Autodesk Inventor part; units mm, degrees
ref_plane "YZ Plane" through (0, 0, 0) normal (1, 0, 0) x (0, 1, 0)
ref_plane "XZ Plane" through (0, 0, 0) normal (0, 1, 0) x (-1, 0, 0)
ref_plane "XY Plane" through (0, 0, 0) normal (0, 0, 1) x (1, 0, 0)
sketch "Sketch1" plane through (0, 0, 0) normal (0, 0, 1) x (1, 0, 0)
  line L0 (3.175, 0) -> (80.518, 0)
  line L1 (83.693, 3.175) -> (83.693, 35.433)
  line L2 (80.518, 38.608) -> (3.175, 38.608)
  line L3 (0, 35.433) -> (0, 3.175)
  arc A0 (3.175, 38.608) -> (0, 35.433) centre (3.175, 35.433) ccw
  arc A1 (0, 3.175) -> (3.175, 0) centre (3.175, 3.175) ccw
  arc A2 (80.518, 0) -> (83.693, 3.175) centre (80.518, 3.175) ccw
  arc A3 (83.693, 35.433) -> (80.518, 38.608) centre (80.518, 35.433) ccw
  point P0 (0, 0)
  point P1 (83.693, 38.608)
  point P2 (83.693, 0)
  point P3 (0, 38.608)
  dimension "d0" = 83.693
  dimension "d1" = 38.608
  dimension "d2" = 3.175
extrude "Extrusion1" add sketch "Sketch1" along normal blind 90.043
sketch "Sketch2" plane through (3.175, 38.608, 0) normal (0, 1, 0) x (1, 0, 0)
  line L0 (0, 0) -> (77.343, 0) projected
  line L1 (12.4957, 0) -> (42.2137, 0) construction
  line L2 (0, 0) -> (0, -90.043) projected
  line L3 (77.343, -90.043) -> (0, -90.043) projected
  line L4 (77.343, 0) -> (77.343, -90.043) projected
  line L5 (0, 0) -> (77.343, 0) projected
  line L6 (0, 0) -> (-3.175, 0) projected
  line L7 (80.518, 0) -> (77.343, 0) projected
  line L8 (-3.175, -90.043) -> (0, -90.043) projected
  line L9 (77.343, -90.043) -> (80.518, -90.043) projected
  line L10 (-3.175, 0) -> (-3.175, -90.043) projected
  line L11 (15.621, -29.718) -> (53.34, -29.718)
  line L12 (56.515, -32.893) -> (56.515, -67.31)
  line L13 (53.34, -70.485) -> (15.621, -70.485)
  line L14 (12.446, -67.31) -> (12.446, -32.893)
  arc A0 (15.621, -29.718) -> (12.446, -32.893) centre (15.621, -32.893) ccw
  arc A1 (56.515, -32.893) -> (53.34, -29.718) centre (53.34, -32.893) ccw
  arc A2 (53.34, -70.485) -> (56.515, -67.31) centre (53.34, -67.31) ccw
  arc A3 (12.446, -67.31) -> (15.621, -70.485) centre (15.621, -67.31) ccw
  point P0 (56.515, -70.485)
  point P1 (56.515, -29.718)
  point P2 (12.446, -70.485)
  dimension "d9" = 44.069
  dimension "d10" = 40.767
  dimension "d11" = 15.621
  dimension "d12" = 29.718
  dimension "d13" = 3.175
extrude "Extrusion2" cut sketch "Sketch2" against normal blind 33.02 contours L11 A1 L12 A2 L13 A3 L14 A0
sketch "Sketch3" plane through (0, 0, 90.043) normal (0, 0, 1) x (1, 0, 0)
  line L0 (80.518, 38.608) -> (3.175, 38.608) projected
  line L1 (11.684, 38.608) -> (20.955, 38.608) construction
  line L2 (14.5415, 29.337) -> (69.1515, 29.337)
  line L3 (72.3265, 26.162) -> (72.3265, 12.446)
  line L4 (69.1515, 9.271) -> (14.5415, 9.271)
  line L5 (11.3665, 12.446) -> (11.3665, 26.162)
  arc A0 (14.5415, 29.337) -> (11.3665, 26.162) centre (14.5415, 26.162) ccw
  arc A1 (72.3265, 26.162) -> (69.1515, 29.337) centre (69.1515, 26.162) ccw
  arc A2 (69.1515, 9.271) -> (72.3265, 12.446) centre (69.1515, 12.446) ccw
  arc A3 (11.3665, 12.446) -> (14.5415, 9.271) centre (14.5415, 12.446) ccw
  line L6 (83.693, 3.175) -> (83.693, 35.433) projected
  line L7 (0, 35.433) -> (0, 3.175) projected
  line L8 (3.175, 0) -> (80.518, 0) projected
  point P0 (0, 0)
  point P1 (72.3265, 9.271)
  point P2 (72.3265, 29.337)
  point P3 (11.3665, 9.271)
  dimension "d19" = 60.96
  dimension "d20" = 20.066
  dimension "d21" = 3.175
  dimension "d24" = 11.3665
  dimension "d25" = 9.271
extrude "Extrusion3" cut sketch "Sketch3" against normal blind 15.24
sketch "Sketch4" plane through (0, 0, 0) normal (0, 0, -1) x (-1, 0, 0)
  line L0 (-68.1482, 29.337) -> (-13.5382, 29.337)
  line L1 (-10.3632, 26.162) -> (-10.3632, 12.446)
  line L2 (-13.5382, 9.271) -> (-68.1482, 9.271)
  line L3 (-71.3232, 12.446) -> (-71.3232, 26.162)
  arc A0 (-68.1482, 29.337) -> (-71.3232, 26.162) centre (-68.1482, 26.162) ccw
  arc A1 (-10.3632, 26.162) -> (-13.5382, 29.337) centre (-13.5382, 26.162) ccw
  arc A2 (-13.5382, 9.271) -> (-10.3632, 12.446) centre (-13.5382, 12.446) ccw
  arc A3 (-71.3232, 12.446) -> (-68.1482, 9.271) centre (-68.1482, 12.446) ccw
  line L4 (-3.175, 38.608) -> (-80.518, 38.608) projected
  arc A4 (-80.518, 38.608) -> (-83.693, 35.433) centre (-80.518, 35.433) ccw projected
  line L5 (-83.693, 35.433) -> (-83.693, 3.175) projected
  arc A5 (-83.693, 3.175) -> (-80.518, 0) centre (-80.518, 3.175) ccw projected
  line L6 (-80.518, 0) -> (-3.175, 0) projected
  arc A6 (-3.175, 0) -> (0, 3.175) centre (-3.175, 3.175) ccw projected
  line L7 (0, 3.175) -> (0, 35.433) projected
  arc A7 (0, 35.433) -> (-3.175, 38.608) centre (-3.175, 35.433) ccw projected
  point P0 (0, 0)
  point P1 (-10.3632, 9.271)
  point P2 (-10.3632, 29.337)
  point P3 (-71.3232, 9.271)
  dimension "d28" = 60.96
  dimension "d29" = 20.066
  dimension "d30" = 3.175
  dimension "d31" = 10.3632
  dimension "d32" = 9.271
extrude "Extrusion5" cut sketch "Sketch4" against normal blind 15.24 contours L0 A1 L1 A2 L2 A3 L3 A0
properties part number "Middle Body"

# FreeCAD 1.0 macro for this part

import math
import FreeCAD as App
import Part
import Sketcher

V = App.Vector
Q = App.Units.Quantity

doc = App.newDocument("Part")
body = doc.addObject("PartDesign::Body", "Body")

sketch1 = body.newObject("Sketcher::SketchObject", "Sketch")
sketch1.AttachmentSupport = (doc.getObject("XY_Plane"), [""])
sketch1.MapMode = "FlatFace"
sketch1.addGeometry(Part.ArcOfCircle(Part.Circle(V(3.2, 3.2, 0), V(0, 0, 1), 3.2), math.radians(180), math.radians(270)), False)
sketch1.addGeometry(Part.LineSegment(V(3.2, 0, 0), V(80.5, 0, 0)), False)
sketch1.addGeometry(Part.ArcOfCircle(Part.Circle(V(80.5, 3.2, 0), V(0, 0, 1), 3.2), math.radians(-90), math.radians(0)), False)
sketch1.addGeometry(Part.LineSegment(V(83.7, 3.2, 0), V(83.7, 35.4, 0)), False)
sketch1.addGeometry(Part.ArcOfCircle(Part.Circle(V(80.5, 35.4, 0), V(0, 0, 1), 3.2), math.radians(0), math.radians(90)), False)
sketch1.addGeometry(Part.LineSegment(V(80.5, 38.6, 0), V(3.2, 38.6, 0)), False)
sketch1.addGeometry(Part.ArcOfCircle(Part.Circle(V(3.2, 35.4, 0), V(0, 0, 1), 3.2), math.radians(90), math.radians(180)), False)
sketch1.addGeometry(Part.LineSegment(V(0, 35.4, 0), V(0, 3.2, 0)), False)
sketch1.addConstraint(Sketcher.Constraint("Tangent", 0, 2, 1, 1))
sketch1.addConstraint(Sketcher.Constraint("Tangent", 1, 2, 2, 1))
sketch1.addConstraint(Sketcher.Constraint("Tangent", 2, 2, 3, 1))
sketch1.addConstraint(Sketcher.Constraint("Tangent", 3, 2, 4, 1))
sketch1.addConstraint(Sketcher.Constraint("Tangent", 4, 2, 5, 1))
sketch1.addConstraint(Sketcher.Constraint("Tangent", 5, 2, 6, 1))
sketch1.addConstraint(Sketcher.Constraint("Tangent", 6, 2, 7, 1))
sketch1.addConstraint(Sketcher.Constraint("Tangent", 7, 2, 0, 1))
sketch1.addConstraint(Sketcher.Constraint("Horizontal", 1))
sketch1.addConstraint(Sketcher.Constraint("Vertical", 3))
sketch1.addConstraint(Sketcher.Constraint("Horizontal", 5))
sketch1.addConstraint(Sketcher.Constraint("Vertical", 7))
sketch1.addConstraint(Sketcher.Constraint("Equal", 0, 2))
sketch1.addConstraint(Sketcher.Constraint("Equal", 2, 4))
sketch1.addConstraint(Sketcher.Constraint("Equal", 4, 6))
sketch1.addConstraint(Sketcher.Constraint("PointOnObject", 0, 2, -1))
sketch1.addConstraint(Sketcher.Constraint("PointOnObject", 6, 2, -2))
sketch1.addConstraint(Sketcher.Constraint("Radius", 0, Q("0.125 in")))
sketch1.addConstraint(Sketcher.Constraint("DistanceY", -1, 1, 4, 2, Q("1.52 in")))
sketch1.addConstraint(Sketcher.Constraint("DistanceX", -1, 1, 2, 2, Q("3.295 in")))
pad1 = body.newObject("PartDesign::Pad", "Pad")
pad1.Profile = sketch1
pad1.Length = Q("3.545 in")

sketch2 = body.newObject("Sketcher::SketchObject", "Sketch001")
sketch2.AttachmentSupport = (doc.getObject("XZ_Plane"), [""])
sketch2.MapMode = "FlatFace"
sketch2.AttachmentOffset = App.Placement(V(0, 0, -1.52 * 25.4), App.Rotation())
sketch2.addGeometry(Part.LineSegment(V(56.5, 29.7, 0), V(18.8, 29.7, 0)), False)
sketch2.addGeometry(Part.ArcOfCircle(Part.Circle(V(18.8, 32.9, 0), V(0, 0, 1), 3.2), math.radians(180), math.radians(270)), False)
sketch2.addGeometry(Part.LineSegment(V(15.6, 32.9, 0), V(15.6, 67.3, 0)), False)
sketch2.addGeometry(Part.ArcOfCircle(Part.Circle(V(18.8, 67.3, 0), V(0, 0, 1), 3.2), math.radians(90), math.radians(180)), False)
sketch2.addGeometry(Part.LineSegment(V(18.8, 70.5, 0), V(56.5, 70.5, 0)), False)
sketch2.addGeometry(Part.ArcOfCircle(Part.Circle(V(56.5, 67.3, 0), V(0, 0, 1), 3.2), math.radians(0), math.radians(90)), False)
sketch2.addGeometry(Part.LineSegment(V(59.7, 67.3, 0), V(59.7, 32.9, 0)), False)
sketch2.addGeometry(Part.ArcOfCircle(Part.Circle(V(56.5, 32.9, 0), V(0, 0, 1), 3.2), math.radians(-90), math.radians(0)), False)
sketch2.addConstraint(Sketcher.Constraint("Tangent", 0, 2, 1, 2))
sketch2.addConstraint(Sketcher.Constraint("Tangent", 1, 1, 2, 1))
sketch2.addConstraint(Sketcher.Constraint("Tangent", 2, 2, 3, 2))
sketch2.addConstraint(Sketcher.Constraint("Tangent", 3, 1, 4, 1))
sketch2.addConstraint(Sketcher.Constraint("Tangent", 4, 2, 5, 2))
sketch2.addConstraint(Sketcher.Constraint("Tangent", 5, 1, 6, 1))
sketch2.addConstraint(Sketcher.Constraint("Tangent", 6, 2, 7, 2))
sketch2.addConstraint(Sketcher.Constraint("Tangent", 7, 1, 0, 1))
sketch2.addConstraint(Sketcher.Constraint("Horizontal", 0))
sketch2.addConstraint(Sketcher.Constraint("Vertical", 2))
sketch2.addConstraint(Sketcher.Constraint("Horizontal", 4))
sketch2.addConstraint(Sketcher.Constraint("Vertical", 6))
sketch2.addConstraint(Sketcher.Constraint("Equal", 1, 3))
sketch2.addConstraint(Sketcher.Constraint("Equal", 3, 5))
sketch2.addConstraint(Sketcher.Constraint("Equal", 5, 7))
sketch2.addConstraint(Sketcher.Constraint("Radius", 1, Q("0.125 in")))
sketch2.addConstraint(Sketcher.Constraint("DistanceY", -1, 1, 0, 2, Q("1.17 in")))
sketch2.addConstraint(Sketcher.Constraint("DistanceX", -1, 1, 1, 1, Q("0.615 in")))
sketch2.addConstraint(Sketcher.Constraint("DistanceX", 0, 2, 0, 1, Q("1.485 in")))
sketch2.addConstraint(Sketcher.Constraint("DistanceY", 2, 1, 2, 2, Q("1.355 in")))
pocket1 = body.newObject("PartDesign::Pocket", "Pocket")
pocket1.Profile = sketch2
pocket1.Length = Q("1.3 in")
pocket1.Reversed = True

sketch3 = body.newObject("Sketcher::SketchObject", "Sketch002")
sketch3.AttachmentSupport = (doc.getObject("XY_Plane"), [""])
sketch3.MapMode = "FlatFace"
sketch3.AttachmentOffset = App.Placement(V(0, 0, 3.545 * 25.4), App.Rotation())
sketch3.addGeometry(Part.LineSegment(V(69.2, 29.3, 0), V(14.5, 29.3, 0)), False)
sketch3.addGeometry(Part.ArcOfCircle(Part.Circle(V(14.5, 26.2, 0), V(0, 0, 1), 3.2), math.radians(90), math.radians(180)), False)
sketch3.addGeometry(Part.LineSegment(V(11.4, 26.2, 0), V(11.4, 12.4, 0)), False)
sketch3.addGeometry(Part.ArcOfCircle(Part.Circle(V(14.5, 12.4, 0), V(0, 0, 1), 3.2), math.radians(180), math.radians(270)), False)
sketch3.addGeometry(Part.LineSegment(V(14.5, 9.3, 0), V(69.2, 9.3, 0)), False)
sketch3.addGeometry(Part.ArcOfCircle(Part.Circle(V(69.2, 12.4, 0), V(0, 0, 1), 3.2), math.radians(-90), math.radians(0)), False)
sketch3.addGeometry(Part.LineSegment(V(72.3, 12.4, 0), V(72.3, 26.2, 0)), False)
sketch3.addGeometry(Part.ArcOfCircle(Part.Circle(V(69.2, 26.2, 0), V(0, 0, 1), 3.2), math.radians(0), math.radians(90)), False)
sketch3.addConstraint(Sketcher.Constraint("Tangent", 0, 2, 1, 1))
sketch3.addConstraint(Sketcher.Constraint("Tangent", 1, 2, 2, 1))
sketch3.addConstraint(Sketcher.Constraint("Tangent", 2, 2, 3, 1))
sketch3.addConstraint(Sketcher.Constraint("Tangent", 3, 2, 4, 1))
sketch3.addConstraint(Sketcher.Constraint("Tangent", 4, 2, 5, 1))
sketch3.addConstraint(Sketcher.Constraint("Tangent", 5, 2, 6, 1))
sketch3.addConstraint(Sketcher.Constraint("Tangent", 6, 2, 7, 1))
sketch3.addConstraint(Sketcher.Constraint("Tangent", 7, 2, 0, 1))
sketch3.addConstraint(Sketcher.Constraint("Horizontal", 0))
sketch3.addConstraint(Sketcher.Constraint("Vertical", 2))
sketch3.addConstraint(Sketcher.Constraint("Horizontal", 4))
sketch3.addConstraint(Sketcher.Constraint("Vertical", 6))
sketch3.addConstraint(Sketcher.Constraint("Equal", 1, 3))
sketch3.addConstraint(Sketcher.Constraint("Equal", 3, 5))
sketch3.addConstraint(Sketcher.Constraint("Equal", 5, 7))
sketch3.addConstraint(Sketcher.Constraint("Radius", 1, Q("0.125 in")))
sketch3.addConstraint(Sketcher.Constraint("DistanceY", 3, 2, 0, 2, Q("0.79 in")))
sketch3.addConstraint(Sketcher.Constraint("DistanceY", -1, 1, 3, 2, Q("0.365 in")))
sketch3.addConstraint(Sketcher.Constraint("DistanceX", 0, 2, 0, 1, Q("2.15 in")))
sketch3.addConstraint(Sketcher.Constraint("DistanceX", -1, 1, 1, 2, Q("0.4475 in")))
pocket2 = body.newObject("PartDesign::Pocket", "Pocket001")
pocket2.Profile = sketch3
pocket2.Length = Q("0.6 in")

sketch4 = body.newObject("Sketcher::SketchObject", "Sketch003")
sketch4.AttachmentSupport = (doc.getObject("XY_Plane"), [""])
sketch4.MapMode = "FlatFace"
sketch4.addGeometry(Part.LineSegment(V(13.5, 29.3, 0), V(68.1, 29.3, 0)), False)
sketch4.addGeometry(Part.ArcOfCircle(Part.Circle(V(68.1, 26.2, 0), V(0, 0, 1), 3.2), math.radians(0), math.radians(90)), False)
sketch4.addGeometry(Part.LineSegment(V(71.3, 26.2, 0), V(71.3, 12.4, 0)), False)
sketch4.addGeometry(Part.ArcOfCircle(Part.Circle(V(68.1, 12.4, 0), V(0, 0, 1), 3.2), math.radians(-90), math.radians(0)), False)
sketch4.addGeometry(Part.LineSegment(V(68.1, 9.3, 0), V(13.5, 9.3, 0)), False)
sketch4.addGeometry(Part.ArcOfCircle(Part.Circle(V(13.5, 12.4, 0), V(0, 0, 1), 3.2), math.radians(180), math.radians(270)), False)
sketch4.addGeometry(Part.LineSegment(V(10.4, 12.4, 0), V(10.4, 26.2, 0)), False)
sketch4.addGeometry(Part.ArcOfCircle(Part.Circle(V(13.5, 26.2, 0), V(0, 0, 1), 3.2), math.radians(90), math.radians(180)), False)
sketch4.addConstraint(Sketcher.Constraint("Tangent", 0, 2, 1, 2))
sketch4.addConstraint(Sketcher.Constraint("Tangent", 1, 1, 2, 1))
sketch4.addConstraint(Sketcher.Constraint("Tangent", 2, 2, 3, 2))
sketch4.addConstraint(Sketcher.Constraint("Tangent", 3, 1, 4, 1))
sketch4.addConstraint(Sketcher.Constraint("Tangent", 4, 2, 5, 2))
sketch4.addConstraint(Sketcher.Constraint("Tangent", 5, 1, 6, 1))
sketch4.addConstraint(Sketcher.Constraint("Tangent", 6, 2, 7, 2))
sketch4.addConstraint(Sketcher.Constraint("Tangent", 7, 1, 0, 1))
sketch4.addConstraint(Sketcher.Constraint("Horizontal", 0))
sketch4.addConstraint(Sketcher.Constraint("Vertical", 2))
sketch4.addConstraint(Sketcher.Constraint("Horizontal", 4))
sketch4.addConstraint(Sketcher.Constraint("Vertical", 6))
sketch4.addConstraint(Sketcher.Constraint("Equal", 1, 3))
sketch4.addConstraint(Sketcher.Constraint("Equal", 3, 5))
sketch4.addConstraint(Sketcher.Constraint("Equal", 5, 7))
sketch4.addConstraint(Sketcher.Constraint("Radius", 1, Q("0.125 in")))
sketch4.addConstraint(Sketcher.Constraint("DistanceY", 3, 1, 0, 2, Q("0.79 in")))
sketch4.addConstraint(Sketcher.Constraint("DistanceY", -1, 1, 3, 1, Q("0.365 in")))
sketch4.addConstraint(Sketcher.Constraint("DistanceX", -1, 1, 5, 1, Q("0.408 in")))
sketch4.addConstraint(Sketcher.Constraint("DistanceX", 0, 1, 0, 2, Q("2.15 in")))
pocket3 = body.newObject("PartDesign::Pocket", "Pocket002")
pocket3.Profile = sketch4
pocket3.Length = Q("0.6 in")
pocket3.Reversed = True

doc.recompute()
